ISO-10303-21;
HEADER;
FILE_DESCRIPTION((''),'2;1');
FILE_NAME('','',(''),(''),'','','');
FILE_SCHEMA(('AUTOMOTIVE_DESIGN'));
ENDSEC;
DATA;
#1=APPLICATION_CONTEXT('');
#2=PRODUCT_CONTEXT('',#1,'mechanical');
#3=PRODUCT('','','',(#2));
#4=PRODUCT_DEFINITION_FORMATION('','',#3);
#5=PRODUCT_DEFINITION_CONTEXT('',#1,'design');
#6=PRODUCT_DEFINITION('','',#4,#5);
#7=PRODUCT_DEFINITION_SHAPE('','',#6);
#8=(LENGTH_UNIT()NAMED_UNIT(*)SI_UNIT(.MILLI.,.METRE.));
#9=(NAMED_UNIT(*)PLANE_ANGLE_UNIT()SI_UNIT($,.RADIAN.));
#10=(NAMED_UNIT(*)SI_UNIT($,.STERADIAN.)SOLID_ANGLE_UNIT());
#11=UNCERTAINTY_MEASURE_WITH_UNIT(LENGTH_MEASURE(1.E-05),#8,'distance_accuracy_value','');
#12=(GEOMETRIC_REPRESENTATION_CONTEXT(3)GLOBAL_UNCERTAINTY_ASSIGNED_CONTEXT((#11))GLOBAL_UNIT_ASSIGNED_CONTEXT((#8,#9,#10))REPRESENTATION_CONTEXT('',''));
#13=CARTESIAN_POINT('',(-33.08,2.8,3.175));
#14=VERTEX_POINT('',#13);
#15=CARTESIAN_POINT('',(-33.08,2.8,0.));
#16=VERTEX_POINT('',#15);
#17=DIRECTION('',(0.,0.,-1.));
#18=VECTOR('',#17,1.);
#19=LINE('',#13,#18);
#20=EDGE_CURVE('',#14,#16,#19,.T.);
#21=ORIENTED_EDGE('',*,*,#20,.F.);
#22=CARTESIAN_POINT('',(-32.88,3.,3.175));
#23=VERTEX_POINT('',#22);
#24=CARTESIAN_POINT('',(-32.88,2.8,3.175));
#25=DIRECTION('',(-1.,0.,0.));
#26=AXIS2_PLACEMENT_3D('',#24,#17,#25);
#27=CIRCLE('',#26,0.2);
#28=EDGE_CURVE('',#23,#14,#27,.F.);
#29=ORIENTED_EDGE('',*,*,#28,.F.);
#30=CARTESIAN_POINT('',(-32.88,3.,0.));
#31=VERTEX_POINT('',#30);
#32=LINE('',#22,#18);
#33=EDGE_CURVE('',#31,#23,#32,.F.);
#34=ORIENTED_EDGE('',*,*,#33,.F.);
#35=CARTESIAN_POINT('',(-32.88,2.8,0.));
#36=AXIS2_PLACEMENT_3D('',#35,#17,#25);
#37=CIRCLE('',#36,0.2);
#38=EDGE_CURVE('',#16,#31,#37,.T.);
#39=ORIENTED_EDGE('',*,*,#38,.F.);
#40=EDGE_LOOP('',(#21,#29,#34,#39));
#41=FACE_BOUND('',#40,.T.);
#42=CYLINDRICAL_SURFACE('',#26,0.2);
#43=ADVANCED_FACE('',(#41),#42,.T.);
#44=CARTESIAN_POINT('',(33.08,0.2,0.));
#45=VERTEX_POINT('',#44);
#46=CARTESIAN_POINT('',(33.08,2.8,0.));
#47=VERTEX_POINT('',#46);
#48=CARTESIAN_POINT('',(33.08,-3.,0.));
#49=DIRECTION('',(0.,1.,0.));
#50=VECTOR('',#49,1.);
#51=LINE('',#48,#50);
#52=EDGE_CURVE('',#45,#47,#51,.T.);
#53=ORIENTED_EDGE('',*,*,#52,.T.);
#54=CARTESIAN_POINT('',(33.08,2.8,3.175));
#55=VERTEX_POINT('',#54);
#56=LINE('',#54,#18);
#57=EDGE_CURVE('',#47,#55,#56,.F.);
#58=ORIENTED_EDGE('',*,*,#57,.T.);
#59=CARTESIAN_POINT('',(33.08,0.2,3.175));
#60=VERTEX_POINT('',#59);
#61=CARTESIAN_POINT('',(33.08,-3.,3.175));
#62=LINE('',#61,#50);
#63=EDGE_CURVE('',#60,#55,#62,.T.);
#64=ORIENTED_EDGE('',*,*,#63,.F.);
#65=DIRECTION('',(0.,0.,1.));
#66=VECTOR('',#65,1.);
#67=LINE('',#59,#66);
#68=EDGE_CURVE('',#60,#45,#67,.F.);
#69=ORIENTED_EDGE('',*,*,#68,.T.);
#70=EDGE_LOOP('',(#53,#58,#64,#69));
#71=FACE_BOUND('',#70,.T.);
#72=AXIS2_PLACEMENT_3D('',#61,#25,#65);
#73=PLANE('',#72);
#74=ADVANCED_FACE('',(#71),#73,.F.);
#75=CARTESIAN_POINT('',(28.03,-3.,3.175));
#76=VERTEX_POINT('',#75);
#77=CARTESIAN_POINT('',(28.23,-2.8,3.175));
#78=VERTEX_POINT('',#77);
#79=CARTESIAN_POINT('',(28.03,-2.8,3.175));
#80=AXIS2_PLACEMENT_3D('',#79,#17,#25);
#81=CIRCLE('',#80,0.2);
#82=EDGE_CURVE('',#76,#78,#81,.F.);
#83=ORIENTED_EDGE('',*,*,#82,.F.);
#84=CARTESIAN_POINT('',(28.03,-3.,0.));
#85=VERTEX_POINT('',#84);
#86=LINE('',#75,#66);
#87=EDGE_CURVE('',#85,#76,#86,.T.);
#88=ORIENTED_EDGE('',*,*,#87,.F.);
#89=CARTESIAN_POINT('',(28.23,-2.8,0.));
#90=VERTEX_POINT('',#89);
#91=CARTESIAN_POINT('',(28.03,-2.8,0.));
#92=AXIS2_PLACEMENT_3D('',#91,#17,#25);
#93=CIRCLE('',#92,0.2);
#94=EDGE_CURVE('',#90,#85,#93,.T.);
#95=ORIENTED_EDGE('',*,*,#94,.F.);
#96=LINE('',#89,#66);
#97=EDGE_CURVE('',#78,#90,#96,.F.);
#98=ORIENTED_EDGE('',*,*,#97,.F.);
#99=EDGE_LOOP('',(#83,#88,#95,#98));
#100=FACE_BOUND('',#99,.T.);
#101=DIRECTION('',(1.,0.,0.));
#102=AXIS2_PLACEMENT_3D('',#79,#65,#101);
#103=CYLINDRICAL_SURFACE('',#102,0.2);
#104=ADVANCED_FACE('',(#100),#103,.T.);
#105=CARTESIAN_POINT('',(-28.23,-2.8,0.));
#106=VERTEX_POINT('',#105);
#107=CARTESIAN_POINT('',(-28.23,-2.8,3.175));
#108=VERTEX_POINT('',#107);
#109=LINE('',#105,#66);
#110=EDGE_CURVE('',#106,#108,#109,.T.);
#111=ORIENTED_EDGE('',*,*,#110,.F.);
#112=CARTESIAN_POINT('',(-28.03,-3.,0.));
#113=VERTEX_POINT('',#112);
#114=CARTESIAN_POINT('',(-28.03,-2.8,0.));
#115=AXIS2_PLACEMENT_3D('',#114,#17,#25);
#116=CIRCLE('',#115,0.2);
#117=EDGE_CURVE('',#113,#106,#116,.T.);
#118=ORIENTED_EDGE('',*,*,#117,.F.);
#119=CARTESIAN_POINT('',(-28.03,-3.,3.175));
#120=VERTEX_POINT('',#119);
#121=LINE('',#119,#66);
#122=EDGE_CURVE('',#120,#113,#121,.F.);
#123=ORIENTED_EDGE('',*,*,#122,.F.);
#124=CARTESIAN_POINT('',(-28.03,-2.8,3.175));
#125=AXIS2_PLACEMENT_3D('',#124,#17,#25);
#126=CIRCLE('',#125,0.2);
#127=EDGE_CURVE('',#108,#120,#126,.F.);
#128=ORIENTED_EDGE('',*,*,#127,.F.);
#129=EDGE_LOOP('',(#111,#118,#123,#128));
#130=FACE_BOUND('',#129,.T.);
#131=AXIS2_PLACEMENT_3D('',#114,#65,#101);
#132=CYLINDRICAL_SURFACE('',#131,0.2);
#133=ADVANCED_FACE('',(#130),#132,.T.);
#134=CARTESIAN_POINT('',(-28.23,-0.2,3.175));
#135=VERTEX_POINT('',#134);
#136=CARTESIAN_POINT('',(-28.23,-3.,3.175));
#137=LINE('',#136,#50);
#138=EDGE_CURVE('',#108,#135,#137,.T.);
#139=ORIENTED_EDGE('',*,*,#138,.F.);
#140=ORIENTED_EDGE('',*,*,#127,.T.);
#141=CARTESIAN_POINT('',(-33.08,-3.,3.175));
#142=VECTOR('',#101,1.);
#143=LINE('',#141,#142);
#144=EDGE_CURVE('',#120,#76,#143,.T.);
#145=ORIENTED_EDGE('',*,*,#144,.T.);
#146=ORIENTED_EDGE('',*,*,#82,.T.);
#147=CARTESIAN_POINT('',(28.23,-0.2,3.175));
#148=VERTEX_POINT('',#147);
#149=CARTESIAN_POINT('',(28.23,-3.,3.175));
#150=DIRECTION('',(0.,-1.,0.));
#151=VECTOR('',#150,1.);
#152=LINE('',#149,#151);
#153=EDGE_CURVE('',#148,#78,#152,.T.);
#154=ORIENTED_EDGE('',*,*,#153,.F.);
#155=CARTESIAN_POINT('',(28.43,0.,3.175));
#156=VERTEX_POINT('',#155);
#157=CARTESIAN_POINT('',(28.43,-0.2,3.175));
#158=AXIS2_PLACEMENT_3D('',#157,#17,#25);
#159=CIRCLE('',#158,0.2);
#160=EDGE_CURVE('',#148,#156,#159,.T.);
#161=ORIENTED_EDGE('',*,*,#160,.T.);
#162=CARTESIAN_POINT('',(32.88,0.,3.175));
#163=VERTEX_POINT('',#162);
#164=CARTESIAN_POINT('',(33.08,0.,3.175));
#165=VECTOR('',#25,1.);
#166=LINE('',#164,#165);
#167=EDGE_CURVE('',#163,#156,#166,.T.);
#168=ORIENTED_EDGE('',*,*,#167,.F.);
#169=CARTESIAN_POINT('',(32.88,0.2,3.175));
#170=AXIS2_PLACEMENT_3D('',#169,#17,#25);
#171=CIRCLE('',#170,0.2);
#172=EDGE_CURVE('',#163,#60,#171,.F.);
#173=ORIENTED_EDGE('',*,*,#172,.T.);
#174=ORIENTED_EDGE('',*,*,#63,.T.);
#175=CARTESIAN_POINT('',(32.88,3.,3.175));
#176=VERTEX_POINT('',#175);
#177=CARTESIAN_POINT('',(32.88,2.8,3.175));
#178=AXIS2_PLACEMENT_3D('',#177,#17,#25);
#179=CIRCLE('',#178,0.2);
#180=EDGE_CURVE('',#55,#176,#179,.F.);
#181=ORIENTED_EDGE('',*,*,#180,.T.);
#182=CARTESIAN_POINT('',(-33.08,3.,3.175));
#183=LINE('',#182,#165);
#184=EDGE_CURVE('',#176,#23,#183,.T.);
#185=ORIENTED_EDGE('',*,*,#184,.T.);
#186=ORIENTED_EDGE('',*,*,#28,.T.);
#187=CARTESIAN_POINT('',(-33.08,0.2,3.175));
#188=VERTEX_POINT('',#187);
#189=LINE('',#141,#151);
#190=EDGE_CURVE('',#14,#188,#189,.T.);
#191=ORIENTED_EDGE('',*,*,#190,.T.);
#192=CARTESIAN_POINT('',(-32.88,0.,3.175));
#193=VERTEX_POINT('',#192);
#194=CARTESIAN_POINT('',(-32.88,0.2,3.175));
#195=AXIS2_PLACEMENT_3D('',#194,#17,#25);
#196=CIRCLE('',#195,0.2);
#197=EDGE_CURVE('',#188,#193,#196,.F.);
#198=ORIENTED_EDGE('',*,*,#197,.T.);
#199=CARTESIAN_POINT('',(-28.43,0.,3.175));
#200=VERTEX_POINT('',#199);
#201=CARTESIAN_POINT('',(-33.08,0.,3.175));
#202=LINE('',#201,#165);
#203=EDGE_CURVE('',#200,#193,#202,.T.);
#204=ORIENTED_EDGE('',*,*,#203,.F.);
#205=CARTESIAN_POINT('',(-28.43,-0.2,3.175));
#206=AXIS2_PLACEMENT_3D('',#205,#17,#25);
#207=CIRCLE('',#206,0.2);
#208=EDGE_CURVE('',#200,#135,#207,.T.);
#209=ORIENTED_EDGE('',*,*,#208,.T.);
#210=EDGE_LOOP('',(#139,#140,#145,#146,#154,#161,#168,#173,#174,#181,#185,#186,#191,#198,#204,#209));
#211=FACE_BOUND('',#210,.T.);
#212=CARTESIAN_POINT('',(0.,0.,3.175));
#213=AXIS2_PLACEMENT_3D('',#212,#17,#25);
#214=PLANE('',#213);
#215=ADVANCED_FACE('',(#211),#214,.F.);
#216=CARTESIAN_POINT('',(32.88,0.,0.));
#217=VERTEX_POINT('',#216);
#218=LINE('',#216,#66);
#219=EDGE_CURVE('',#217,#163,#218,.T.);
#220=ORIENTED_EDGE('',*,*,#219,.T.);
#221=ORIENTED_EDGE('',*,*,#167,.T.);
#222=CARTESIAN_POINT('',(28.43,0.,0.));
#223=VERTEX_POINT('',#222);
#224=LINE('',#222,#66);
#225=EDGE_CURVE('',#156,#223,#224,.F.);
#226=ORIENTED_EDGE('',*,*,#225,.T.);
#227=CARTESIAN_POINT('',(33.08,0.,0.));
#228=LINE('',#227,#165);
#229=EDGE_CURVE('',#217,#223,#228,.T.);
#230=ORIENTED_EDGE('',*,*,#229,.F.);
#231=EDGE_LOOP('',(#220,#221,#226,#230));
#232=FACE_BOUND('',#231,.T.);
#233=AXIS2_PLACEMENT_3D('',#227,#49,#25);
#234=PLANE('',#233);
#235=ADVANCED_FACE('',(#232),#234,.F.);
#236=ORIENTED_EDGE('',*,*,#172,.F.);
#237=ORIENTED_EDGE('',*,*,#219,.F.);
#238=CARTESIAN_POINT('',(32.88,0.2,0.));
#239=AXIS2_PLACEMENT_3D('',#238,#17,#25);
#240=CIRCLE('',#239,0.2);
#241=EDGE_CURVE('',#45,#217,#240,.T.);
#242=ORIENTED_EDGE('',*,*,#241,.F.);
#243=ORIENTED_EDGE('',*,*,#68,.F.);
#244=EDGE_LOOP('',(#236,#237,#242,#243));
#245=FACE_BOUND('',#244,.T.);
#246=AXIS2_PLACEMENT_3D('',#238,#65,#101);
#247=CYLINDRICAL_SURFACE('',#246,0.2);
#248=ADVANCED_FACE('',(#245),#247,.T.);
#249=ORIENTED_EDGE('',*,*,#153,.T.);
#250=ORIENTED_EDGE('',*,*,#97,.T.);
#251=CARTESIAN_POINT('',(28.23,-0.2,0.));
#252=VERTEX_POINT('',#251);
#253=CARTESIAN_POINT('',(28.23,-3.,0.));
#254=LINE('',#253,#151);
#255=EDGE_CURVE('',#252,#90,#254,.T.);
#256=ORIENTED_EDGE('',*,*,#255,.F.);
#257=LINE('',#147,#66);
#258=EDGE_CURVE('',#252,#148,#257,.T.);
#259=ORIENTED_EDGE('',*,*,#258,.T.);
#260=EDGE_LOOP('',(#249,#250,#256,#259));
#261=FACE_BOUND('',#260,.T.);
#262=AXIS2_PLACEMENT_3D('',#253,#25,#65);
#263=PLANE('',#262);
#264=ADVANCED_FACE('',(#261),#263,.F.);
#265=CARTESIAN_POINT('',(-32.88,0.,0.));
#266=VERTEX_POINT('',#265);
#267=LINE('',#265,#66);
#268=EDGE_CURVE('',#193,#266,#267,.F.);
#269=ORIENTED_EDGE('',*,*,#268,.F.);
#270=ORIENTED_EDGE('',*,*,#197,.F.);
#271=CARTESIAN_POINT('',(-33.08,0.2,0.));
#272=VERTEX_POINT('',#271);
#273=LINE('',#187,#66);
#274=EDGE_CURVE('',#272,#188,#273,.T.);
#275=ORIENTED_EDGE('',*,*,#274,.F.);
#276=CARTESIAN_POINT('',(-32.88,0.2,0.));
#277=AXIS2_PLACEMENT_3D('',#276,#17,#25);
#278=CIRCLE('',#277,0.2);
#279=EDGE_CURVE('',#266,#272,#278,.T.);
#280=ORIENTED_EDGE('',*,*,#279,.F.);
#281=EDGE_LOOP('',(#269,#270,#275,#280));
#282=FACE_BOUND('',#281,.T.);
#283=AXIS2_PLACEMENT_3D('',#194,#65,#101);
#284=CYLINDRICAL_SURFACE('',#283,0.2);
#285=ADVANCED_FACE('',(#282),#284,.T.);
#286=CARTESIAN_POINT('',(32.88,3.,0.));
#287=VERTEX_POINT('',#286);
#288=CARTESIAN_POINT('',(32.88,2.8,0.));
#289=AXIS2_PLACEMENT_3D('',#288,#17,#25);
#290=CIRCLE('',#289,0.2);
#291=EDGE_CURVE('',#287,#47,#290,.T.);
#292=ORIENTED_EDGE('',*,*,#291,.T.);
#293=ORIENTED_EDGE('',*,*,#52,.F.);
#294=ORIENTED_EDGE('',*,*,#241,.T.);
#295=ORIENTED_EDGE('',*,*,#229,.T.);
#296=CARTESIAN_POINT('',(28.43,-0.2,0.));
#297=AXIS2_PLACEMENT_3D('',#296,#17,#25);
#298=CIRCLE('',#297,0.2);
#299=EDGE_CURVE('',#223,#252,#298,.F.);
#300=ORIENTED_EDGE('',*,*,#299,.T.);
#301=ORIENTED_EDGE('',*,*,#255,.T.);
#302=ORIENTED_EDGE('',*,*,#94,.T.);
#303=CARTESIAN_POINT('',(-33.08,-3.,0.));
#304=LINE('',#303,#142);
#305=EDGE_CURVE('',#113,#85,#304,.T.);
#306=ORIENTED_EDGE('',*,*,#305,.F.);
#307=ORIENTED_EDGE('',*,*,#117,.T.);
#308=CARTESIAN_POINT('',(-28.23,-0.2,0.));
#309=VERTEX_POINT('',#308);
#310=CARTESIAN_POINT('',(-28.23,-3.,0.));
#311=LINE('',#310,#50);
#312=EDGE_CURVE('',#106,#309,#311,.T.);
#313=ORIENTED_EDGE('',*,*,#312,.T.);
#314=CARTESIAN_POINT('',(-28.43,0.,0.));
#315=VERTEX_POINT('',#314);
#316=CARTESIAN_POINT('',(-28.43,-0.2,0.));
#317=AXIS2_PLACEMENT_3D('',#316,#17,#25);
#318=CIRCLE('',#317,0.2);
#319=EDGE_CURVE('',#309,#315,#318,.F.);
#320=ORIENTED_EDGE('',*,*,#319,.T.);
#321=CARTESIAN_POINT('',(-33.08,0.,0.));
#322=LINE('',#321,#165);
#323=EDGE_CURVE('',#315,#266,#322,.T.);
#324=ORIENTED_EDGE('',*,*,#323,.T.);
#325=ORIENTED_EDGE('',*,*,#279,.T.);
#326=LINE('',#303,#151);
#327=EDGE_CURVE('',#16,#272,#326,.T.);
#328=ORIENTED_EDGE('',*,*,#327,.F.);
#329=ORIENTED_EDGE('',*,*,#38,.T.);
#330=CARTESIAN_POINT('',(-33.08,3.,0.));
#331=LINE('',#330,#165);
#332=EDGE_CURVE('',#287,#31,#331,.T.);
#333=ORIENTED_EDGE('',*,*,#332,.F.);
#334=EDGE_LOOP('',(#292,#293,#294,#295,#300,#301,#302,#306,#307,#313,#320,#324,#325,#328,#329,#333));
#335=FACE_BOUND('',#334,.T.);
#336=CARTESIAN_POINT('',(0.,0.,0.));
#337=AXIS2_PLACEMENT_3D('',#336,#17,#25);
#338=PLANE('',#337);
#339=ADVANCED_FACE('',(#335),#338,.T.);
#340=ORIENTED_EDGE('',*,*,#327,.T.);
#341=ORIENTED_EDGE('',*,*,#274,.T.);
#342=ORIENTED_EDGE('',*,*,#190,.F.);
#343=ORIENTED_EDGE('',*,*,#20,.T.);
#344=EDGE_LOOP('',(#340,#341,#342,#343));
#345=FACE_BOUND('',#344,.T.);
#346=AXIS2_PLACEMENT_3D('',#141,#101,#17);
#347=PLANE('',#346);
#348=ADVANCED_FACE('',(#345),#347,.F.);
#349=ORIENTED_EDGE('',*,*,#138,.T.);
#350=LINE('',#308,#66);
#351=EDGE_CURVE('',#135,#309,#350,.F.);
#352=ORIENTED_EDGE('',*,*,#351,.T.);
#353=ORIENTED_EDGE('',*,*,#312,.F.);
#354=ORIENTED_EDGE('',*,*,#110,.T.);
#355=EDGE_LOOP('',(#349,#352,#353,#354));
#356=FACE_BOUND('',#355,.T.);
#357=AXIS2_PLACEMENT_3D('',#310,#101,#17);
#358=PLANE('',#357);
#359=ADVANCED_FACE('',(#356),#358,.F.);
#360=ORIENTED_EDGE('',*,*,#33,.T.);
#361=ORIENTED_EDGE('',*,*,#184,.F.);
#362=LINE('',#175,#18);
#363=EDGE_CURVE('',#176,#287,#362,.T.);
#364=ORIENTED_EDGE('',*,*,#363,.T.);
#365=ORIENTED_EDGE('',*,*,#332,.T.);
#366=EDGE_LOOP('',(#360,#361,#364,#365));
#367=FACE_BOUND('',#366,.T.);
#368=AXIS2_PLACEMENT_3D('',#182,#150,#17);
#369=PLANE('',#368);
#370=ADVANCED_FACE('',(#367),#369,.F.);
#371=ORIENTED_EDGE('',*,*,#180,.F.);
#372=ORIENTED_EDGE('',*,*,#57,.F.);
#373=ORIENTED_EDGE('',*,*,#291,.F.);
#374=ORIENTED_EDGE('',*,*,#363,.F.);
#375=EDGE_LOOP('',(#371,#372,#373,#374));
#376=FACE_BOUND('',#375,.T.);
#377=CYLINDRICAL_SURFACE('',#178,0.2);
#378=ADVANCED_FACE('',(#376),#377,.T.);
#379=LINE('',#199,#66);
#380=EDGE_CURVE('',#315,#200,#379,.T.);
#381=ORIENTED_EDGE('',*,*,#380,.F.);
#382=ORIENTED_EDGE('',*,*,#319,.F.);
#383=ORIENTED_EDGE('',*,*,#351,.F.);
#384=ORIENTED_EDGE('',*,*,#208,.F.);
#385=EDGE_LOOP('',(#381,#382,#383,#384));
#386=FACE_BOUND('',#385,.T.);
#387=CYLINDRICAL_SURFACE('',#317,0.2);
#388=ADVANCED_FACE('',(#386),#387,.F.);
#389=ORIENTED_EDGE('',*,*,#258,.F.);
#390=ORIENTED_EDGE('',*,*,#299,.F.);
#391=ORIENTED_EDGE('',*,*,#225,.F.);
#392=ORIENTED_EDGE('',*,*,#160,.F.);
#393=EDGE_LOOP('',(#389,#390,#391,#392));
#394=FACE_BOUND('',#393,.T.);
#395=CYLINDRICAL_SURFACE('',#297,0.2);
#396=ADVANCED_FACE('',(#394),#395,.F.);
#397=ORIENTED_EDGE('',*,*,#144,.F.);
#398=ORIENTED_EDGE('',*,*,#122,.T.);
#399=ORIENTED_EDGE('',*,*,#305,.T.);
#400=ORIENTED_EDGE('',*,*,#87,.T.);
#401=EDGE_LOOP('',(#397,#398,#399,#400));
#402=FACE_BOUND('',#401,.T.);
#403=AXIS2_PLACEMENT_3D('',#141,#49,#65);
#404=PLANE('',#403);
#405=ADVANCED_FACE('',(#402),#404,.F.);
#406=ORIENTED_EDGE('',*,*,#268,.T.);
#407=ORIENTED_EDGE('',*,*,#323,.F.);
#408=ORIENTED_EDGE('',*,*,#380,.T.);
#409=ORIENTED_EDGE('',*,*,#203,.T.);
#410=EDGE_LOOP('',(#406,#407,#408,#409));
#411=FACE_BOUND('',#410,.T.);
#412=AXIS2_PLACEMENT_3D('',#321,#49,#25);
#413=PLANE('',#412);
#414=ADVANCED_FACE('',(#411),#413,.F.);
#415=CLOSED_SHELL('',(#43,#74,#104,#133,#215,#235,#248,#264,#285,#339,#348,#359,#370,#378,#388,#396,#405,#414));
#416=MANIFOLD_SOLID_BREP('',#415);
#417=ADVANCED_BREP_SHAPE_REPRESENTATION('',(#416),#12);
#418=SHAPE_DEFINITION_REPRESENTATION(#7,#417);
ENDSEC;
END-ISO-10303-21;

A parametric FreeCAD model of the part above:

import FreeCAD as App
import Part
import Sketcher

V = App.Vector
Q = App.Units.Quantity


def edges_at(feature, points):
    """Names of the edges that pass closest to the given points."""
    edges = feature.Shape.Edges
    near = lambda p: min(range(len(edges)), key=lambda i: edges[i].distToShape(Part.Vertex(*p))[0])
    return sorted({f"Edge{near(p) + 1}" for p in points})

doc = App.newDocument("Part")
body = doc.addObject("PartDesign::Body", "Body")

# Sketch on XY plane
sketch1 = doc.addObject("Sketcher::SketchObject", "Sketch")
body.addObject(sketch1)
sketch1.AttachmentSupport = (doc.XY_Plane, [""])
sketch1.MapMode = "FlatFace"
sketch1.addGeometry([
    Part.LineSegment(V(-33, 3, 0), V(-33, -3, 0)),
    Part.LineSegment(V(-33, -3, 0), V(33, -3, 0)),
    Part.LineSegment(V(33, -3, 0), V(33, 3, 0)),
    Part.LineSegment(V(33, 3, 0), V(-33, 3, 0)),
], False)
sketch1.addConstraint([
    Sketcher.Constraint("Coincident", 0, 2, 1, 1),
    Sketcher.Constraint("Coincident", 1, 2, 2, 1),
    Sketcher.Constraint("Coincident", 2, 2, 3, 1),
    Sketcher.Constraint("Coincident", 3, 2, 0, 1),
    Sketcher.Constraint("Vertical", 0),
    Sketcher.Constraint("Horizontal", 1),
    Sketcher.Constraint("Vertical", 2),
    Sketcher.Constraint("Horizontal", 3),
    Sketcher.Constraint("Symmetric", 0, 2, 2, 2, -1, 1),
    Sketcher.Constraint("DistanceY", 0, 2, 0, 1, Q("6 mm")),
    Sketcher.Constraint("DistanceX", 1, 1, 1, 2, Q("66.16 mm")),
])
pad1 = doc.addObject("PartDesign::Pad", "Pad")
body.addObject(pad1)
pad1.Profile = sketch1
pad1.Length = 3.175

# Sketch on XY plane
sketch2 = doc.addObject("Sketcher::SketchObject", "Sketch001")
body.addObject(sketch2)
sketch2.AttachmentSupport = (doc.XY_Plane, [""])
sketch2.MapMode = "FlatFace"
sketch2.AttachmentOffset = App.Placement(V(0, 0, 3.175), App.Rotation())
sketch2.addGeometry([
    Part.LineSegment(V(-33.1, 0, 0), V(-33.1, -3, 0)),  # 0
    Part.LineSegment(V(-33.1, -3, 0), V(-28.2, -3, 0)),  # 1
    Part.LineSegment(V(-28.2, -3, 0), V(-28.2, 0, 0)),  # 2
    Part.LineSegment(V(-28.2, 0, 0), V(-33.1, 0, 0)),  # 3
    Part.LineSegment(V(28.2, 0, 0), V(28.2, -3, 0)),  # 4
    Part.LineSegment(V(28.2, -3, 0), V(33.1, -3, 0)),  # 5
    Part.LineSegment(V(33.1, -3, 0), V(33.1, 0, 0)),  # 6
    Part.LineSegment(V(33.1, 0, 0), V(28.2, 0, 0)),  # 7
], False)
sketch2.addConstraint([
    Sketcher.Constraint("Coincident", 0, 2, 1, 1),
    Sketcher.Constraint("Coincident", 1, 2, 2, 1),
    Sketcher.Constraint("Coincident", 2, 2, 3, 1),
    Sketcher.Constraint("Coincident", 3, 2, 0, 1),
    Sketcher.Constraint("Coincident", 4, 2, 5, 1),
    Sketcher.Constraint("Coincident", 5, 2, 6, 1),
    Sketcher.Constraint("Coincident", 6, 2, 7, 1),
    Sketcher.Constraint("Coincident", 7, 2, 4, 1),
    Sketcher.Constraint("Vertical", 0),
    Sketcher.Constraint("Horizontal", 1),
    Sketcher.Constraint("Vertical", 2),
    Sketcher.Constraint("Horizontal", 3),
    Sketcher.Constraint("Vertical", 4),
    Sketcher.Constraint("Horizontal", 5),
    Sketcher.Constraint("Vertical", 6),
    Sketcher.Constraint("Horizontal", 7),
    Sketcher.Constraint("Symmetric", 3, 2, 6, 2, -1, 1),
    Sketcher.Constraint("Symmetric", 1, 2, 4, 2, -2),
    Sketcher.Constraint("PointOnObject", 2, 2, -1),
    Sketcher.Constraint("DistanceY", 0, 2, 0, 1, Q("3 mm")),
    Sketcher.Constraint("DistanceX", 1, 1, 1, 2, Q("4.85 mm")),
    Sketcher.Constraint("DistanceX", 0, 2, -1, 1, Q("33.08 mm")),
])
pocket1 = doc.addObject("PartDesign::Pocket", "Pocket")
body.addObject(pocket1)
pocket1.Profile = sketch2
pocket1.Type = "ThroughAll"
doc.recompute()

fillet = doc.addObject("PartDesign::Fillet", "Fillet")
body.addObject(fillet)
fillet.Base = (pocket1, edges_at(pocket1, [
    (-33.08, 0, 1.587),
    (-28.23, 0, 1.587),
    (-28.23, -3, 1.587),
    (33.08, 0, 1.587),
    (28.23, -3, 1.587),
    (28.23, 0, 1.587),
    (-33.08, 3, 1.587),
    (33.08, 3, 1.587),
]))
fillet.Radius = 0.2

doc.recompute()
